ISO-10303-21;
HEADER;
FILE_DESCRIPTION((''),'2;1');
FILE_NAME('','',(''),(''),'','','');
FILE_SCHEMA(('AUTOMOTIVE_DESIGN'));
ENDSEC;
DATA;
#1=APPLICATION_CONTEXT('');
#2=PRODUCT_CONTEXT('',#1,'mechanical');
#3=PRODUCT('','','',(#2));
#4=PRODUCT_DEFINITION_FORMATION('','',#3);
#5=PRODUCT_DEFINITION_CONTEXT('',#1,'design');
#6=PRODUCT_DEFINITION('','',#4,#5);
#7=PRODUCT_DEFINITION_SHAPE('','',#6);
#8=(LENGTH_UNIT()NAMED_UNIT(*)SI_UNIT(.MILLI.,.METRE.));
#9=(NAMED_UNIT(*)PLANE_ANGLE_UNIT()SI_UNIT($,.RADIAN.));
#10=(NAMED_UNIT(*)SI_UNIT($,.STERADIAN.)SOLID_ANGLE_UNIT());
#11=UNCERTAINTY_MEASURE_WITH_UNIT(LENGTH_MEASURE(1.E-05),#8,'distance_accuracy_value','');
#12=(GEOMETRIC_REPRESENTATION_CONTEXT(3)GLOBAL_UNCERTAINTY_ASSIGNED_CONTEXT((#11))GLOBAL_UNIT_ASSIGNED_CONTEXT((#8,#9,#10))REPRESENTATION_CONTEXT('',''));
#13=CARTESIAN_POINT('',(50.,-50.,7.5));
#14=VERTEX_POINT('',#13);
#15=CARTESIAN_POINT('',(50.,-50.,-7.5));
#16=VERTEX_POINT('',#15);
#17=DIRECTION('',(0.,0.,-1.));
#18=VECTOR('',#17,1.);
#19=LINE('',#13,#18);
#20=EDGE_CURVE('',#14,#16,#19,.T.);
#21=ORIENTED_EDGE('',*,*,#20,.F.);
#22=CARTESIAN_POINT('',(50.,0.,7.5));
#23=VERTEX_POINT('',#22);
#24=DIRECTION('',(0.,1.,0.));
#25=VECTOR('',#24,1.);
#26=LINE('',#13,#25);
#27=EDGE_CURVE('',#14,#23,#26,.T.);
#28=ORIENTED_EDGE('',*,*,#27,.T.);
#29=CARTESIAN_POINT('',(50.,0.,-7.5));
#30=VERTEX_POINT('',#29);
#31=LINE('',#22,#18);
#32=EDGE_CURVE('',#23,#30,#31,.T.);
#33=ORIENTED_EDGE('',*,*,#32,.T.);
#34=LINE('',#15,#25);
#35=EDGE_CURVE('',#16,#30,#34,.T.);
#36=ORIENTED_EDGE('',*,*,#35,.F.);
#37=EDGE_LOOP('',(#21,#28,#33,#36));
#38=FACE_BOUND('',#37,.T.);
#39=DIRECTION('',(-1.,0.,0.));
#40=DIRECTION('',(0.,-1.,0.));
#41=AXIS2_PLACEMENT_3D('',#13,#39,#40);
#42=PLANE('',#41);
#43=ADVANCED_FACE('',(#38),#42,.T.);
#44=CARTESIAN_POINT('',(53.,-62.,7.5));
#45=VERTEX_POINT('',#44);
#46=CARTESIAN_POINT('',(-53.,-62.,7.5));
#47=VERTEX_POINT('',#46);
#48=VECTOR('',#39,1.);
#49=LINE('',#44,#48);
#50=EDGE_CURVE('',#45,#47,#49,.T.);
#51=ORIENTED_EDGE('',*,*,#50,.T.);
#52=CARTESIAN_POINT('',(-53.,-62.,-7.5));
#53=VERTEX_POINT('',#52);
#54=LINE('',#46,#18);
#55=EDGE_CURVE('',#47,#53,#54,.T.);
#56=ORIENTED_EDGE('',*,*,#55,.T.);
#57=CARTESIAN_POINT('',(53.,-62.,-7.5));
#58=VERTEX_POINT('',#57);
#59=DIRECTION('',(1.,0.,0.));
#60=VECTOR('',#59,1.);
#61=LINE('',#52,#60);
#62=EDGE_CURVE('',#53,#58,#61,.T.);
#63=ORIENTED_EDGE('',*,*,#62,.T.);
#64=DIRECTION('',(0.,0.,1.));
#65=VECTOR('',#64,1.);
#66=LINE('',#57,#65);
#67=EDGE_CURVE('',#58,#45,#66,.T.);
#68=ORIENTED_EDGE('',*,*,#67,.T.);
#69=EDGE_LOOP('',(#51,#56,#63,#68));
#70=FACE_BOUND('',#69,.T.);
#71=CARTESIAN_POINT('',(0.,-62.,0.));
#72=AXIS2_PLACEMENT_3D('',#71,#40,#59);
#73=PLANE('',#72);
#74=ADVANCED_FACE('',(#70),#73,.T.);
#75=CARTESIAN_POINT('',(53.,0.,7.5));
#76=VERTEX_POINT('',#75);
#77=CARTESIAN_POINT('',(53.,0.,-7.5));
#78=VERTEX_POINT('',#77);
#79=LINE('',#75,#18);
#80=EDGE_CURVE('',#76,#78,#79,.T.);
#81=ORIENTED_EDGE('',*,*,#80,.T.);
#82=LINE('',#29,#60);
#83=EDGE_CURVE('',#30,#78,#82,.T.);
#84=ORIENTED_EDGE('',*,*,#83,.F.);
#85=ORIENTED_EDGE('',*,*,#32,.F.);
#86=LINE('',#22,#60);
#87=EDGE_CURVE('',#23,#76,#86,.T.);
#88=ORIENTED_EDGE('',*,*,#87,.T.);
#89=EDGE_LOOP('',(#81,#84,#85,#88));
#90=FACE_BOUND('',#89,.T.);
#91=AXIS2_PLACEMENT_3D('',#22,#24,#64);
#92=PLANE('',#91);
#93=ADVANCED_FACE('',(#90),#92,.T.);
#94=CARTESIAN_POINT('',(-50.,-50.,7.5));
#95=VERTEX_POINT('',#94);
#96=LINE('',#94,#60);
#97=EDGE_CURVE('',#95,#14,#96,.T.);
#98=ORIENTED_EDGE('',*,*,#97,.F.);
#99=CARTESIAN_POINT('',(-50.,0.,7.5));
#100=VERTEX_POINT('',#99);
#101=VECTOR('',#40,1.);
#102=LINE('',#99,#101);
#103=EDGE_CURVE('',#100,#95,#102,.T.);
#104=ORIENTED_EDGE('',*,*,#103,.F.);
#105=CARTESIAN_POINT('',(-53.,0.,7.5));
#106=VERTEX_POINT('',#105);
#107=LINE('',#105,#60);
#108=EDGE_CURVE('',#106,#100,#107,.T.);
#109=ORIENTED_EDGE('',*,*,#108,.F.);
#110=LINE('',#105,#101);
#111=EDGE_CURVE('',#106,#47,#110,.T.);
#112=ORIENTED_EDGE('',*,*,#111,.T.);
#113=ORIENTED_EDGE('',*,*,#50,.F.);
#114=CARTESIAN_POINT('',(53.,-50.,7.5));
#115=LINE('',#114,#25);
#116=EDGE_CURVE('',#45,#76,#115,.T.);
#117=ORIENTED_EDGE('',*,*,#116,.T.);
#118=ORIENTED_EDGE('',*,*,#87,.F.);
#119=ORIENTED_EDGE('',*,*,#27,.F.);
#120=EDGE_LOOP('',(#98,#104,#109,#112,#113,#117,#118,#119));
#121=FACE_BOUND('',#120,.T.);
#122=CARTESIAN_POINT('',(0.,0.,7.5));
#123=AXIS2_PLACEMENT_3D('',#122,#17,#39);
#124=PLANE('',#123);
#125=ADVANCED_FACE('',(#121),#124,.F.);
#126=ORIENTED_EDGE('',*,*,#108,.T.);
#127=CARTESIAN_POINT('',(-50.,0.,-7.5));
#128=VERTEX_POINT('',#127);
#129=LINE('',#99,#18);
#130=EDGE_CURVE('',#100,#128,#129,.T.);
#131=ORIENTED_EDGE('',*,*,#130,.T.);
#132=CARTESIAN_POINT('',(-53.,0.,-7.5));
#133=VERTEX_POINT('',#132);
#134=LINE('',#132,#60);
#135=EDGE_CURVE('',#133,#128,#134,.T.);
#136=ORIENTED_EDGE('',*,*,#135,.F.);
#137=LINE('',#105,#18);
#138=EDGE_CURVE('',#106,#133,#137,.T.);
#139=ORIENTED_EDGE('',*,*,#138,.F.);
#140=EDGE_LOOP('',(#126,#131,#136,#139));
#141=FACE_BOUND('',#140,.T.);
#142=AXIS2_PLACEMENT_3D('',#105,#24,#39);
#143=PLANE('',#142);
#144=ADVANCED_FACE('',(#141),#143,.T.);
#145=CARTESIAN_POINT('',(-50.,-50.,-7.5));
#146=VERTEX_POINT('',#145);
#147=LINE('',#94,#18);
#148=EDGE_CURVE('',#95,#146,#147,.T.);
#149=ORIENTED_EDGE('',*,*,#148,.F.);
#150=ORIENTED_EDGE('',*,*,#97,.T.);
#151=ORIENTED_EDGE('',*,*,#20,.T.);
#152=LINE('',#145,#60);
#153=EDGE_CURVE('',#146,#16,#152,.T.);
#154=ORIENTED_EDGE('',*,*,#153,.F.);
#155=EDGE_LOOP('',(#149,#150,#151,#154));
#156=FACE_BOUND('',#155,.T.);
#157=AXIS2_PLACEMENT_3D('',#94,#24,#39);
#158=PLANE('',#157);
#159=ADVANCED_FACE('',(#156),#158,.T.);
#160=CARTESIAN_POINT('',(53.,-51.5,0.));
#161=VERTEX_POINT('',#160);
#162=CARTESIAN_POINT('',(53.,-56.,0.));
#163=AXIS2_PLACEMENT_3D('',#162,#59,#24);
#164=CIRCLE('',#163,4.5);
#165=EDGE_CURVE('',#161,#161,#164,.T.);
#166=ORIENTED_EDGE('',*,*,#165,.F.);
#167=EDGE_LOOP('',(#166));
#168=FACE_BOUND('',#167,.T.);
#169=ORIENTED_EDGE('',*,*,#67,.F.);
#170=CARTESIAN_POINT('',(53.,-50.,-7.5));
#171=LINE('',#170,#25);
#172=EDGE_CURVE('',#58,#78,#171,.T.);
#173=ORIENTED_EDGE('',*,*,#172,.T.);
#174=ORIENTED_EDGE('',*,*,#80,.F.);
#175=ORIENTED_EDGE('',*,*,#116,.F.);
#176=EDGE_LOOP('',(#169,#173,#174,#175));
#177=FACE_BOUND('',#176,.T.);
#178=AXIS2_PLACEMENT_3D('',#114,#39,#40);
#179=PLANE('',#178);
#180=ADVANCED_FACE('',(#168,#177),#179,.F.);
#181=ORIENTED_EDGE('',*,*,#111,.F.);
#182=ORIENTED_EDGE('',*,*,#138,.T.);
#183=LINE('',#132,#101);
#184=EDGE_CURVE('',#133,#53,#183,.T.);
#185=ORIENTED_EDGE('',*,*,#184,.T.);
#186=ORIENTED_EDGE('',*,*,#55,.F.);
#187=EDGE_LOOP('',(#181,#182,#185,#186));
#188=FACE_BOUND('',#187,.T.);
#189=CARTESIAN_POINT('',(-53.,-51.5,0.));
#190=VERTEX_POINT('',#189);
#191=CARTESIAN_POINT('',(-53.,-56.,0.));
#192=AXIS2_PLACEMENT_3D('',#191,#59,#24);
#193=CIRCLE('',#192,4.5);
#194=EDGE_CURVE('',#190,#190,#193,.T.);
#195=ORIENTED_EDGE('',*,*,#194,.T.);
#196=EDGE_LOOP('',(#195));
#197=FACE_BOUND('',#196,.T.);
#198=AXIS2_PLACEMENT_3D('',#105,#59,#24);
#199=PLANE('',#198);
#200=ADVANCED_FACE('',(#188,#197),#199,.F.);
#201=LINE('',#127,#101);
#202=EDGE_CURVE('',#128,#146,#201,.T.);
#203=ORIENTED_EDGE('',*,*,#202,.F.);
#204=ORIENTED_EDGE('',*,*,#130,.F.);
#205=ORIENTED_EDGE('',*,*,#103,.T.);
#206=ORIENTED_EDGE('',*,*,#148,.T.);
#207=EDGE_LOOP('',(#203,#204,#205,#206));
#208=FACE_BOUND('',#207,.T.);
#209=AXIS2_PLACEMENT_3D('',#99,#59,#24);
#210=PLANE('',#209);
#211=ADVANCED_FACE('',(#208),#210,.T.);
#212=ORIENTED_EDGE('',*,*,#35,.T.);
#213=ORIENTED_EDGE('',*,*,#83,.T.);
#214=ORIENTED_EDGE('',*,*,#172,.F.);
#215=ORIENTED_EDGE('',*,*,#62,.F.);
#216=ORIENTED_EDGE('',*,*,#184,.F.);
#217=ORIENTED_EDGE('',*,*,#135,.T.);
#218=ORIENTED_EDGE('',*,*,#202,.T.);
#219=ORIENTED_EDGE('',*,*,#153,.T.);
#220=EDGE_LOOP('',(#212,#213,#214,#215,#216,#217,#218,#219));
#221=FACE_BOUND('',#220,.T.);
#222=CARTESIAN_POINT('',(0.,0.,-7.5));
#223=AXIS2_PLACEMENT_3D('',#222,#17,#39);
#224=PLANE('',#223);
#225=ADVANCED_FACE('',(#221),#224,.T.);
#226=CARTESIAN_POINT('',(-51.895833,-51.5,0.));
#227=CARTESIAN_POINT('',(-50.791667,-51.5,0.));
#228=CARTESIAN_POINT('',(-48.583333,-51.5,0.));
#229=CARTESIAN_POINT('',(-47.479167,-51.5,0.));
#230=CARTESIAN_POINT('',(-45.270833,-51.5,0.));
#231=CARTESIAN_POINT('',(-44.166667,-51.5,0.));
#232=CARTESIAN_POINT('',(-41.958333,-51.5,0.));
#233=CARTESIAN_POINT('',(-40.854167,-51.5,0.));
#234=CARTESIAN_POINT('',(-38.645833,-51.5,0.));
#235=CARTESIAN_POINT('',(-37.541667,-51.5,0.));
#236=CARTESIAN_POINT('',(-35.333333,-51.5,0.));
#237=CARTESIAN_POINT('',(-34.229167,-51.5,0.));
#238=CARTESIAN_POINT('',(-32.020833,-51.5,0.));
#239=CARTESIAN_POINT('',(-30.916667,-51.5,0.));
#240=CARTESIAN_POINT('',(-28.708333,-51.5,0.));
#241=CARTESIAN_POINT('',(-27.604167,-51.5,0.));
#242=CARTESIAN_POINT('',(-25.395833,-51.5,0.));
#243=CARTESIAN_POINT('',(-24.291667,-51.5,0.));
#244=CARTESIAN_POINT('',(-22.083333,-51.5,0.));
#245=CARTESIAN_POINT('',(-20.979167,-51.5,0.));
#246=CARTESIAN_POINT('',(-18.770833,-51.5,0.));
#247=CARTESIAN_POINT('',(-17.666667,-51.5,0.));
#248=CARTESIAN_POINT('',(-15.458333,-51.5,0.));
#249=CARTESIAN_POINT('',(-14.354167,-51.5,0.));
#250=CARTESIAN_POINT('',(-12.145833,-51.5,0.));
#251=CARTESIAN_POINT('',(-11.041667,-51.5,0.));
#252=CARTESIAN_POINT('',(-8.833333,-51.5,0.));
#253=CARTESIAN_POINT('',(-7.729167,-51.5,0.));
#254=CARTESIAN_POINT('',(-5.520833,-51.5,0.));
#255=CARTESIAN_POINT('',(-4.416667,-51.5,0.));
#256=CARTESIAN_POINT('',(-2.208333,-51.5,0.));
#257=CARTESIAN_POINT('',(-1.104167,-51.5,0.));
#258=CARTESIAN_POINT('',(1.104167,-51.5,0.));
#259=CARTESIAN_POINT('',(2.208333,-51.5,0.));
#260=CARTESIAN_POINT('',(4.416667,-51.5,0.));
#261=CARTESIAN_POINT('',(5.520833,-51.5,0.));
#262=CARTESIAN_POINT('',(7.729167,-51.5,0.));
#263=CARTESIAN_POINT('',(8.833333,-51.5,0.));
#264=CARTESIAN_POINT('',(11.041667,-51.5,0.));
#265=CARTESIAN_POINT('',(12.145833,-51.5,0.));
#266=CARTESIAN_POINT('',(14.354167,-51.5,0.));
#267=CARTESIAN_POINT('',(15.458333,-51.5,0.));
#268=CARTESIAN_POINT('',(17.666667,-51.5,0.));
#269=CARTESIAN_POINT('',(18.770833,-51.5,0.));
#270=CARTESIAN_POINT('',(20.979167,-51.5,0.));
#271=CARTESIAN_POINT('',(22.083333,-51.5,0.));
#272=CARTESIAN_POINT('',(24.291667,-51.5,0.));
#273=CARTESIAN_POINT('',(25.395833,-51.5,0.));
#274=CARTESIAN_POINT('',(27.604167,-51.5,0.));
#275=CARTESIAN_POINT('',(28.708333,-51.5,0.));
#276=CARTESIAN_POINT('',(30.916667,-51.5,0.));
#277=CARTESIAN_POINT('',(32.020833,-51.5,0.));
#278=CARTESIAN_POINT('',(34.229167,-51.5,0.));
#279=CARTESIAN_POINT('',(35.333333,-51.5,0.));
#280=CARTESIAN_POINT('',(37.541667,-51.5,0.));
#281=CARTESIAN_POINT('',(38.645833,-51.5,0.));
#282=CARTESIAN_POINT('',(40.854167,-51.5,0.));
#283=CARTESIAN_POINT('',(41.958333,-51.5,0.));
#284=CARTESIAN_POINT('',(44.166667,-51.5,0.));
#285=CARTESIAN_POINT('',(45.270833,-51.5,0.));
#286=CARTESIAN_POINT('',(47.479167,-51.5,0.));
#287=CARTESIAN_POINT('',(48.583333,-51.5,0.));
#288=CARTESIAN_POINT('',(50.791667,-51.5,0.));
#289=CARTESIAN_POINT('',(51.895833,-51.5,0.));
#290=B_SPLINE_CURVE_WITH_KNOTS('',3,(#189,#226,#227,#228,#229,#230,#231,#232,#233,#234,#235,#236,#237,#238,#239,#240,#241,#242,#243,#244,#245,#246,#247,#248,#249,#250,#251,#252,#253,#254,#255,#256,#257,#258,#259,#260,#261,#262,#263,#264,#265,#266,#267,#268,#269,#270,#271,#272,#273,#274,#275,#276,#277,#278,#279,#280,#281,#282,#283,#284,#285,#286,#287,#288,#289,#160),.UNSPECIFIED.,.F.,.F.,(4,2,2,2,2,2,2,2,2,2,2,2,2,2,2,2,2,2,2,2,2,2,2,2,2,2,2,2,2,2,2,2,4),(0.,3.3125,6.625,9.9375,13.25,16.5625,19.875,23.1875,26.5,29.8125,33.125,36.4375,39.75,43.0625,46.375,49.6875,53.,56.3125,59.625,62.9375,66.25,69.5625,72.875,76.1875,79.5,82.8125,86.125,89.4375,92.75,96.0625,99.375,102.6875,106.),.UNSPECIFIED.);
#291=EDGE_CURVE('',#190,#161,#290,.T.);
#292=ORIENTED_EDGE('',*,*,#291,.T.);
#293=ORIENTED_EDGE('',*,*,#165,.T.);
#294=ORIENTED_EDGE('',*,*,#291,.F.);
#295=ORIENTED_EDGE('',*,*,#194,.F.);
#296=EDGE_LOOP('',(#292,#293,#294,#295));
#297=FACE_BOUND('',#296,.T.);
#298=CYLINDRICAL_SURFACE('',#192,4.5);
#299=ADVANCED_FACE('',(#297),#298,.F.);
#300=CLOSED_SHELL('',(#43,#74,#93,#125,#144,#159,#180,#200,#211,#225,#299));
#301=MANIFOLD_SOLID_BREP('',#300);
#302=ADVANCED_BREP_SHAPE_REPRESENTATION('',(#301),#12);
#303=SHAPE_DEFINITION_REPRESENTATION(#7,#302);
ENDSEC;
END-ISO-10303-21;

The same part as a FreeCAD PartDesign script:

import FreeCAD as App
import Part
import Sketcher
Q = App.Units.Quantity


def add_polygon(sketch, points):
    """Adds a closed chain of lines whose ends are joined by coincident constraints."""
    first, n = sketch.GeometryCount, len(points)
    for a, b in zip(points, points[1:] + points[:1]):
        sketch.addGeometry(Part.LineSegment(App.Vector(*a, 0), App.Vector(*b, 0)), False)
    for i in range(n):
        sketch.addConstraint(Sketcher.Constraint("Coincident", first + i, 2, first + (i + 1) % n, 1))

doc = App.newDocument("Part")
body = doc.addObject("PartDesign::Body", "Body")

sketch1 = body.newObject("Sketcher::SketchObject", "Sketch")
sketch1.AttachmentSupport = (doc.getObject("XY_Plane"), [""])
sketch1.MapMode = "FlatFace"
add_polygon(sketch1, [(-50, -50), (-50, 0), (-53, 0), (-53, -53), (53, -53), (53, 0), (50, 0), (50, -50)])
sketch1.addConstraint(Sketcher.Constraint("Vertical", 0))
sketch1.addConstraint(Sketcher.Constraint("Horizontal", 1))
sketch1.addConstraint(Sketcher.Constraint("Vertical", 2))
sketch1.addConstraint(Sketcher.Constraint("Horizontal", 3))
sketch1.addConstraint(Sketcher.Constraint("Vertical", 4))
sketch1.addConstraint(Sketcher.Constraint("Horizontal", 5))
sketch1.addConstraint(Sketcher.Constraint("Vertical", 6))
sketch1.addConstraint(Sketcher.Constraint("Horizontal", 7))
sketch1.addConstraint(Sketcher.Constraint("Symmetric", 1, 2, 4, 2, -1, 1))
sketch1.addConstraint(Sketcher.Constraint("Symmetric", 0, 2, 5, 2, -2))
sketch1.addConstraint(Sketcher.Constraint("DistanceX", 1, 2, 1, 1, Q("3 mm")))
sketch1.addConstraint(Sketcher.Constraint("DistanceX", 3, 1, 3, 2, Q("106 mm")))
sketch1.addConstraint(Sketcher.Constraint("DistanceY", 0, 1, 0, 2, Q("50 mm")))
sketch1.addConstraint(Sketcher.Constraint("DistanceY", 2, 2, 2, 1, Q("53 mm")))
pad1 = body.newObject("PartDesign::Pad", "Pad")
pad1.Profile = sketch1
pad1.Length = 15
pad1.Midplane = True

sketch2 = body.newObject("Sketcher::SketchObject", "Sketch001")
sketch2.AttachmentSupport = (doc.getObject("XZ_Plane"), [""])
sketch2.MapMode = "FlatFace"
sketch2.AttachmentOffset = App.Placement(App.Vector(0, 0, 53), App.Rotation())
add_polygon(sketch2, [(-53, 8), (-53, -8), (53, -8), (53, 8)])
sketch2.addConstraint(Sketcher.Constraint("Vertical", 0))
sketch2.addConstraint(Sketcher.Constraint("Horizontal", 1))
sketch2.addConstraint(Sketcher.Constraint("Vertical", 2))
sketch2.addConstraint(Sketcher.Constraint("Horizontal", 3))
sketch2.addConstraint(Sketcher.Constraint("Symmetric", 0, 2, 2, 2, -1, 1))
sketch2.addConstraint(Sketcher.Constraint("DistanceX", 1, 1, 1, 2, Q("106 mm")))
sketch2.addConstraint(Sketcher.Constraint("DistanceY", 0, 2, 0, 1, Q("15 mm")))
pad2 = body.newObject("PartDesign::Pad", "Pad001")
pad2.Profile = sketch2
pad2.Length = 9

sketch3 = body.newObject("Sketcher::SketchObject", "Sketch002")
sketch3.AttachmentSupport = (doc.getObject("YZ_Plane"), [""])
sketch3.MapMode = "FlatFace"
sketch3.AttachmentOffset = App.Placement(App.Vector(0, 0, 53), App.Rotation())
sketch3.addGeometry(Part.Circle(App.Vector(-56, 0, 0), App.Vector(0, 0, 1), 4.5), False)
sketch3.addConstraint(Sketcher.Constraint("PointOnObject", 0, 3, -1))
sketch3.addConstraint(Sketcher.Constraint("Diameter", 0, Q("9 mm")))
sketch3.addConstraint(Sketcher.Constraint("DistanceX", 0, 3, -1, 1, Q("56 mm")))
pocket1 = body.newObject("PartDesign::Pocket", "Pocket")
pocket1.Profile = sketch3
pocket1.Type = "ThroughAll"

doc.recompute()
